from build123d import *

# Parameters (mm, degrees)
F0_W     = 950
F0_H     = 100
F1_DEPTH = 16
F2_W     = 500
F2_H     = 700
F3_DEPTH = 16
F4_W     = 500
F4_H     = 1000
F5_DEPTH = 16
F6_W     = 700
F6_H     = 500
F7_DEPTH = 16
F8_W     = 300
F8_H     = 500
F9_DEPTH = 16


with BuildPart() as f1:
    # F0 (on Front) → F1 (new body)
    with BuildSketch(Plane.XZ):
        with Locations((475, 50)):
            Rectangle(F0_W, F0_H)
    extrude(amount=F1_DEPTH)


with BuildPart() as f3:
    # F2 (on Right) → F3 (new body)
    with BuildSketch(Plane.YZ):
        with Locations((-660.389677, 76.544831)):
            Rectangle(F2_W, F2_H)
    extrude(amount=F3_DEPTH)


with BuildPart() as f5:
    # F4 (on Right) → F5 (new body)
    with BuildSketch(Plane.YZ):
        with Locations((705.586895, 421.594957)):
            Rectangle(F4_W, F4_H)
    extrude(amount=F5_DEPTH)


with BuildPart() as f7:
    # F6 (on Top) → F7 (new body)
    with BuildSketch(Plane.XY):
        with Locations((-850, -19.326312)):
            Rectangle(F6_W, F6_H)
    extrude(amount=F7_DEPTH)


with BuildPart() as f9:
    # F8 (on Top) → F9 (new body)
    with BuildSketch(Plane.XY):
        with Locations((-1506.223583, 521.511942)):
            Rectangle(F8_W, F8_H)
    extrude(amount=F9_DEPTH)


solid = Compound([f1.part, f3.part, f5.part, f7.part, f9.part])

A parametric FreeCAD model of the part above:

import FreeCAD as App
import Part
import Sketcher
Q = App.Units.Quantity


def add_polygon(sketch, points):
    """Adds a closed chain of lines whose ends are joined by coincident constraints."""
    first, n = sketch.GeometryCount, len(points)
    for a, b in zip(points, points[1:] + points[:1]):
        sketch.addGeometry(Part.LineSegment(App.Vector(*a, 0), App.Vector(*b, 0)), False)
    for i in range(n):
        sketch.addConstraint(Sketcher.Constraint("Coincident", first + i, 2, first + (i + 1) % n, 1))

doc = App.newDocument("Part")
body = doc.addObject("PartDesign::Body", "Body")

# Sketch on XZ plane
sketch1 = doc.addObject("Sketcher::SketchObject", "Sketch")
body.addObject(sketch1)
sketch1.AttachmentSupport = (doc.XZ_Plane, [""])
sketch1.MapMode = "FlatFace"
add_polygon(sketch1, [(0, 100), (0, 0), (950, 0), (950, 100)])  # lines 0-3
sketch1.addConstraint([
    Sketcher.Constraint("Vertical", 0),
    Sketcher.Constraint("Horizontal", 1),
    Sketcher.Constraint("Vertical", 2),
    Sketcher.Constraint("Horizontal", 3),
    Sketcher.Constraint("Coincident", 0, 2, -1, 1),
    Sketcher.Constraint("DistanceX", 1, 1, 1, 2, Q("950 mm")),
    Sketcher.Constraint("DistanceY", 0, 2, 0, 1, Q("100 mm")),
])
pad1 = doc.addObject("PartDesign::Pad", "Pad")
body.addObject(pad1)
pad1.Profile = sketch1
pad1.Length = 16
body2 = doc.addObject("PartDesign::Body", "Body001")

# Sketch on YZ plane
sketch2 = doc.addObject("Sketcher::SketchObject", "Sketch001")
body2.addObject(sketch2)
sketch2.AttachmentSupport = (doc.getObject("YZ_Plane001"), [""])
sketch2.MapMode = "FlatFace"
add_polygon(sketch2, [(-910, 427), (-910, -273), (-410, -273), (-410, 427)])  # lines 0-3
sketch2.addConstraint([
    Sketcher.Constraint("Vertical", 0),
    Sketcher.Constraint("Horizontal", 1),
    Sketcher.Constraint("Vertical", 2),
    Sketcher.Constraint("Horizontal", 3),
    Sketcher.Constraint("DistanceX", 1, 1, 1, 2, Q("500 mm")),
    Sketcher.Constraint("DistanceY", 0, 2, 0, 1, Q("700 mm")),
    Sketcher.Constraint("DistanceY", 0, 2, -1, 1, Q("273.455169 mm")),
    Sketcher.Constraint("DistanceX", 0, 2, -1, 1, Q("910.389677 mm")),
])
pad2 = doc.addObject("PartDesign::Pad", "Pad001")
body2.addObject(pad2)
pad2.Profile = sketch2
pad2.Length = 16
body3 = doc.addObject("PartDesign::Body", "Body002")

# Sketch on YZ plane
sketch3 = doc.addObject("Sketcher::SketchObject", "Sketch002")
body3.addObject(sketch3)
sketch3.AttachmentSupport = (doc.getObject("YZ_Plane002"), [""])
sketch3.MapMode = "FlatFace"
add_polygon(sketch3, [(456, 922), (456, -78), (956, -78), (956, 922)])  # lines 0-3
sketch3.addConstraint([
    Sketcher.Constraint("Vertical", 0),
    Sketcher.Constraint("Horizontal", 1),
    Sketcher.Constraint("Vertical", 2),
    Sketcher.Constraint("Horizontal", 3),
    Sketcher.Constraint("DistanceX", 1, 1, 1, 2, Q("500 mm")),
    Sketcher.Constraint("DistanceY", 0, 2, 0, 1, Q("1000 mm")),
    Sketcher.Constraint("DistanceX", -1, 1, 0, 2, Q("455.586895 mm")),
    Sketcher.Constraint("DistanceY", 0, 2, -1, 1, Q("78.405043 mm")),
])
pad3 = doc.addObject("PartDesign::Pad", "Pad002")
body3.addObject(pad3)
pad3.Profile = sketch3
pad3.Length = 16
body4 = doc.addObject("PartDesign::Body", "Body003")

# Sketch on XY plane
sketch4 = doc.addObject("Sketcher::SketchObject", "Sketch003")
body4.addObject(sketch4)
sketch4.AttachmentSupport = (doc.getObject("XY_Plane003"), [""])
sketch4.MapMode = "FlatFace"
add_polygon(sketch4, [(-1200, 231), (-1200, -269), (-500, -269), (-500, 231)])  # lines 0-3
sketch4.addConstraint([
    Sketcher.Constraint("Vertical", 0),
    Sketcher.Constraint("Horizontal", 1),
    Sketcher.Constraint("Vertical", 2),
    Sketcher.Constraint("Horizontal", 3),
    Sketcher.Constraint("DistanceX", 1, 1, 1, 2, Q("700 mm")),
    Sketcher.Constraint("DistanceY", 0, 2, 0, 1, Q("500 mm")),
    Sketcher.Constraint("DistanceX", 0, 2, -1, 1, Q("1200 mm")),
    Sketcher.Constraint("DistanceY", 0, 2, -1, 1, Q("269.326312 mm")),
])
pad4 = doc.addObject("PartDesign::Pad", "Pad003")
body4.addObject(pad4)
pad4.Profile = sketch4
pad4.Length = 16
body5 = doc.addObject("PartDesign::Body", "Body004")

# Sketch on XY plane
sketch5 = doc.addObject("Sketcher::SketchObject", "Sketch004")
body5.addObject(sketch5)
sketch5.AttachmentSupport = (doc.getObject("XY_Plane004"), [""])
sketch5.MapMode = "FlatFace"
add_polygon(sketch5, [(-1656, 772), (-1656, 272), (-1356, 272), (-1356, 772)])  # lines 0-3
sketch5.addConstraint([
    Sketcher.Constraint("Vertical", 0),
    Sketcher.Constraint("Horizontal", 1),
    Sketcher.Constraint("Vertical", 2),
    Sketcher.Constraint("Horizontal", 3),
    Sketcher.Constraint("DistanceX", 1, 1, 1, 2, Q("300 mm")),
    Sketcher.Constraint("DistanceY", 0, 2, 0, 1, Q("500 mm")),
    Sketcher.Constraint("DistanceY", -1, 1, 0, 2, Q("271.511942 mm")),
    Sketcher.Constraint("DistanceX", 0, 2, -1, 1, Q("1656.223583 mm")),
])
pad5 = doc.addObject("PartDesign::Pad", "Pad004")
body5.addObject(pad5)
pad5.Profile = sketch5
pad5.Length = 16

doc.recompute()
